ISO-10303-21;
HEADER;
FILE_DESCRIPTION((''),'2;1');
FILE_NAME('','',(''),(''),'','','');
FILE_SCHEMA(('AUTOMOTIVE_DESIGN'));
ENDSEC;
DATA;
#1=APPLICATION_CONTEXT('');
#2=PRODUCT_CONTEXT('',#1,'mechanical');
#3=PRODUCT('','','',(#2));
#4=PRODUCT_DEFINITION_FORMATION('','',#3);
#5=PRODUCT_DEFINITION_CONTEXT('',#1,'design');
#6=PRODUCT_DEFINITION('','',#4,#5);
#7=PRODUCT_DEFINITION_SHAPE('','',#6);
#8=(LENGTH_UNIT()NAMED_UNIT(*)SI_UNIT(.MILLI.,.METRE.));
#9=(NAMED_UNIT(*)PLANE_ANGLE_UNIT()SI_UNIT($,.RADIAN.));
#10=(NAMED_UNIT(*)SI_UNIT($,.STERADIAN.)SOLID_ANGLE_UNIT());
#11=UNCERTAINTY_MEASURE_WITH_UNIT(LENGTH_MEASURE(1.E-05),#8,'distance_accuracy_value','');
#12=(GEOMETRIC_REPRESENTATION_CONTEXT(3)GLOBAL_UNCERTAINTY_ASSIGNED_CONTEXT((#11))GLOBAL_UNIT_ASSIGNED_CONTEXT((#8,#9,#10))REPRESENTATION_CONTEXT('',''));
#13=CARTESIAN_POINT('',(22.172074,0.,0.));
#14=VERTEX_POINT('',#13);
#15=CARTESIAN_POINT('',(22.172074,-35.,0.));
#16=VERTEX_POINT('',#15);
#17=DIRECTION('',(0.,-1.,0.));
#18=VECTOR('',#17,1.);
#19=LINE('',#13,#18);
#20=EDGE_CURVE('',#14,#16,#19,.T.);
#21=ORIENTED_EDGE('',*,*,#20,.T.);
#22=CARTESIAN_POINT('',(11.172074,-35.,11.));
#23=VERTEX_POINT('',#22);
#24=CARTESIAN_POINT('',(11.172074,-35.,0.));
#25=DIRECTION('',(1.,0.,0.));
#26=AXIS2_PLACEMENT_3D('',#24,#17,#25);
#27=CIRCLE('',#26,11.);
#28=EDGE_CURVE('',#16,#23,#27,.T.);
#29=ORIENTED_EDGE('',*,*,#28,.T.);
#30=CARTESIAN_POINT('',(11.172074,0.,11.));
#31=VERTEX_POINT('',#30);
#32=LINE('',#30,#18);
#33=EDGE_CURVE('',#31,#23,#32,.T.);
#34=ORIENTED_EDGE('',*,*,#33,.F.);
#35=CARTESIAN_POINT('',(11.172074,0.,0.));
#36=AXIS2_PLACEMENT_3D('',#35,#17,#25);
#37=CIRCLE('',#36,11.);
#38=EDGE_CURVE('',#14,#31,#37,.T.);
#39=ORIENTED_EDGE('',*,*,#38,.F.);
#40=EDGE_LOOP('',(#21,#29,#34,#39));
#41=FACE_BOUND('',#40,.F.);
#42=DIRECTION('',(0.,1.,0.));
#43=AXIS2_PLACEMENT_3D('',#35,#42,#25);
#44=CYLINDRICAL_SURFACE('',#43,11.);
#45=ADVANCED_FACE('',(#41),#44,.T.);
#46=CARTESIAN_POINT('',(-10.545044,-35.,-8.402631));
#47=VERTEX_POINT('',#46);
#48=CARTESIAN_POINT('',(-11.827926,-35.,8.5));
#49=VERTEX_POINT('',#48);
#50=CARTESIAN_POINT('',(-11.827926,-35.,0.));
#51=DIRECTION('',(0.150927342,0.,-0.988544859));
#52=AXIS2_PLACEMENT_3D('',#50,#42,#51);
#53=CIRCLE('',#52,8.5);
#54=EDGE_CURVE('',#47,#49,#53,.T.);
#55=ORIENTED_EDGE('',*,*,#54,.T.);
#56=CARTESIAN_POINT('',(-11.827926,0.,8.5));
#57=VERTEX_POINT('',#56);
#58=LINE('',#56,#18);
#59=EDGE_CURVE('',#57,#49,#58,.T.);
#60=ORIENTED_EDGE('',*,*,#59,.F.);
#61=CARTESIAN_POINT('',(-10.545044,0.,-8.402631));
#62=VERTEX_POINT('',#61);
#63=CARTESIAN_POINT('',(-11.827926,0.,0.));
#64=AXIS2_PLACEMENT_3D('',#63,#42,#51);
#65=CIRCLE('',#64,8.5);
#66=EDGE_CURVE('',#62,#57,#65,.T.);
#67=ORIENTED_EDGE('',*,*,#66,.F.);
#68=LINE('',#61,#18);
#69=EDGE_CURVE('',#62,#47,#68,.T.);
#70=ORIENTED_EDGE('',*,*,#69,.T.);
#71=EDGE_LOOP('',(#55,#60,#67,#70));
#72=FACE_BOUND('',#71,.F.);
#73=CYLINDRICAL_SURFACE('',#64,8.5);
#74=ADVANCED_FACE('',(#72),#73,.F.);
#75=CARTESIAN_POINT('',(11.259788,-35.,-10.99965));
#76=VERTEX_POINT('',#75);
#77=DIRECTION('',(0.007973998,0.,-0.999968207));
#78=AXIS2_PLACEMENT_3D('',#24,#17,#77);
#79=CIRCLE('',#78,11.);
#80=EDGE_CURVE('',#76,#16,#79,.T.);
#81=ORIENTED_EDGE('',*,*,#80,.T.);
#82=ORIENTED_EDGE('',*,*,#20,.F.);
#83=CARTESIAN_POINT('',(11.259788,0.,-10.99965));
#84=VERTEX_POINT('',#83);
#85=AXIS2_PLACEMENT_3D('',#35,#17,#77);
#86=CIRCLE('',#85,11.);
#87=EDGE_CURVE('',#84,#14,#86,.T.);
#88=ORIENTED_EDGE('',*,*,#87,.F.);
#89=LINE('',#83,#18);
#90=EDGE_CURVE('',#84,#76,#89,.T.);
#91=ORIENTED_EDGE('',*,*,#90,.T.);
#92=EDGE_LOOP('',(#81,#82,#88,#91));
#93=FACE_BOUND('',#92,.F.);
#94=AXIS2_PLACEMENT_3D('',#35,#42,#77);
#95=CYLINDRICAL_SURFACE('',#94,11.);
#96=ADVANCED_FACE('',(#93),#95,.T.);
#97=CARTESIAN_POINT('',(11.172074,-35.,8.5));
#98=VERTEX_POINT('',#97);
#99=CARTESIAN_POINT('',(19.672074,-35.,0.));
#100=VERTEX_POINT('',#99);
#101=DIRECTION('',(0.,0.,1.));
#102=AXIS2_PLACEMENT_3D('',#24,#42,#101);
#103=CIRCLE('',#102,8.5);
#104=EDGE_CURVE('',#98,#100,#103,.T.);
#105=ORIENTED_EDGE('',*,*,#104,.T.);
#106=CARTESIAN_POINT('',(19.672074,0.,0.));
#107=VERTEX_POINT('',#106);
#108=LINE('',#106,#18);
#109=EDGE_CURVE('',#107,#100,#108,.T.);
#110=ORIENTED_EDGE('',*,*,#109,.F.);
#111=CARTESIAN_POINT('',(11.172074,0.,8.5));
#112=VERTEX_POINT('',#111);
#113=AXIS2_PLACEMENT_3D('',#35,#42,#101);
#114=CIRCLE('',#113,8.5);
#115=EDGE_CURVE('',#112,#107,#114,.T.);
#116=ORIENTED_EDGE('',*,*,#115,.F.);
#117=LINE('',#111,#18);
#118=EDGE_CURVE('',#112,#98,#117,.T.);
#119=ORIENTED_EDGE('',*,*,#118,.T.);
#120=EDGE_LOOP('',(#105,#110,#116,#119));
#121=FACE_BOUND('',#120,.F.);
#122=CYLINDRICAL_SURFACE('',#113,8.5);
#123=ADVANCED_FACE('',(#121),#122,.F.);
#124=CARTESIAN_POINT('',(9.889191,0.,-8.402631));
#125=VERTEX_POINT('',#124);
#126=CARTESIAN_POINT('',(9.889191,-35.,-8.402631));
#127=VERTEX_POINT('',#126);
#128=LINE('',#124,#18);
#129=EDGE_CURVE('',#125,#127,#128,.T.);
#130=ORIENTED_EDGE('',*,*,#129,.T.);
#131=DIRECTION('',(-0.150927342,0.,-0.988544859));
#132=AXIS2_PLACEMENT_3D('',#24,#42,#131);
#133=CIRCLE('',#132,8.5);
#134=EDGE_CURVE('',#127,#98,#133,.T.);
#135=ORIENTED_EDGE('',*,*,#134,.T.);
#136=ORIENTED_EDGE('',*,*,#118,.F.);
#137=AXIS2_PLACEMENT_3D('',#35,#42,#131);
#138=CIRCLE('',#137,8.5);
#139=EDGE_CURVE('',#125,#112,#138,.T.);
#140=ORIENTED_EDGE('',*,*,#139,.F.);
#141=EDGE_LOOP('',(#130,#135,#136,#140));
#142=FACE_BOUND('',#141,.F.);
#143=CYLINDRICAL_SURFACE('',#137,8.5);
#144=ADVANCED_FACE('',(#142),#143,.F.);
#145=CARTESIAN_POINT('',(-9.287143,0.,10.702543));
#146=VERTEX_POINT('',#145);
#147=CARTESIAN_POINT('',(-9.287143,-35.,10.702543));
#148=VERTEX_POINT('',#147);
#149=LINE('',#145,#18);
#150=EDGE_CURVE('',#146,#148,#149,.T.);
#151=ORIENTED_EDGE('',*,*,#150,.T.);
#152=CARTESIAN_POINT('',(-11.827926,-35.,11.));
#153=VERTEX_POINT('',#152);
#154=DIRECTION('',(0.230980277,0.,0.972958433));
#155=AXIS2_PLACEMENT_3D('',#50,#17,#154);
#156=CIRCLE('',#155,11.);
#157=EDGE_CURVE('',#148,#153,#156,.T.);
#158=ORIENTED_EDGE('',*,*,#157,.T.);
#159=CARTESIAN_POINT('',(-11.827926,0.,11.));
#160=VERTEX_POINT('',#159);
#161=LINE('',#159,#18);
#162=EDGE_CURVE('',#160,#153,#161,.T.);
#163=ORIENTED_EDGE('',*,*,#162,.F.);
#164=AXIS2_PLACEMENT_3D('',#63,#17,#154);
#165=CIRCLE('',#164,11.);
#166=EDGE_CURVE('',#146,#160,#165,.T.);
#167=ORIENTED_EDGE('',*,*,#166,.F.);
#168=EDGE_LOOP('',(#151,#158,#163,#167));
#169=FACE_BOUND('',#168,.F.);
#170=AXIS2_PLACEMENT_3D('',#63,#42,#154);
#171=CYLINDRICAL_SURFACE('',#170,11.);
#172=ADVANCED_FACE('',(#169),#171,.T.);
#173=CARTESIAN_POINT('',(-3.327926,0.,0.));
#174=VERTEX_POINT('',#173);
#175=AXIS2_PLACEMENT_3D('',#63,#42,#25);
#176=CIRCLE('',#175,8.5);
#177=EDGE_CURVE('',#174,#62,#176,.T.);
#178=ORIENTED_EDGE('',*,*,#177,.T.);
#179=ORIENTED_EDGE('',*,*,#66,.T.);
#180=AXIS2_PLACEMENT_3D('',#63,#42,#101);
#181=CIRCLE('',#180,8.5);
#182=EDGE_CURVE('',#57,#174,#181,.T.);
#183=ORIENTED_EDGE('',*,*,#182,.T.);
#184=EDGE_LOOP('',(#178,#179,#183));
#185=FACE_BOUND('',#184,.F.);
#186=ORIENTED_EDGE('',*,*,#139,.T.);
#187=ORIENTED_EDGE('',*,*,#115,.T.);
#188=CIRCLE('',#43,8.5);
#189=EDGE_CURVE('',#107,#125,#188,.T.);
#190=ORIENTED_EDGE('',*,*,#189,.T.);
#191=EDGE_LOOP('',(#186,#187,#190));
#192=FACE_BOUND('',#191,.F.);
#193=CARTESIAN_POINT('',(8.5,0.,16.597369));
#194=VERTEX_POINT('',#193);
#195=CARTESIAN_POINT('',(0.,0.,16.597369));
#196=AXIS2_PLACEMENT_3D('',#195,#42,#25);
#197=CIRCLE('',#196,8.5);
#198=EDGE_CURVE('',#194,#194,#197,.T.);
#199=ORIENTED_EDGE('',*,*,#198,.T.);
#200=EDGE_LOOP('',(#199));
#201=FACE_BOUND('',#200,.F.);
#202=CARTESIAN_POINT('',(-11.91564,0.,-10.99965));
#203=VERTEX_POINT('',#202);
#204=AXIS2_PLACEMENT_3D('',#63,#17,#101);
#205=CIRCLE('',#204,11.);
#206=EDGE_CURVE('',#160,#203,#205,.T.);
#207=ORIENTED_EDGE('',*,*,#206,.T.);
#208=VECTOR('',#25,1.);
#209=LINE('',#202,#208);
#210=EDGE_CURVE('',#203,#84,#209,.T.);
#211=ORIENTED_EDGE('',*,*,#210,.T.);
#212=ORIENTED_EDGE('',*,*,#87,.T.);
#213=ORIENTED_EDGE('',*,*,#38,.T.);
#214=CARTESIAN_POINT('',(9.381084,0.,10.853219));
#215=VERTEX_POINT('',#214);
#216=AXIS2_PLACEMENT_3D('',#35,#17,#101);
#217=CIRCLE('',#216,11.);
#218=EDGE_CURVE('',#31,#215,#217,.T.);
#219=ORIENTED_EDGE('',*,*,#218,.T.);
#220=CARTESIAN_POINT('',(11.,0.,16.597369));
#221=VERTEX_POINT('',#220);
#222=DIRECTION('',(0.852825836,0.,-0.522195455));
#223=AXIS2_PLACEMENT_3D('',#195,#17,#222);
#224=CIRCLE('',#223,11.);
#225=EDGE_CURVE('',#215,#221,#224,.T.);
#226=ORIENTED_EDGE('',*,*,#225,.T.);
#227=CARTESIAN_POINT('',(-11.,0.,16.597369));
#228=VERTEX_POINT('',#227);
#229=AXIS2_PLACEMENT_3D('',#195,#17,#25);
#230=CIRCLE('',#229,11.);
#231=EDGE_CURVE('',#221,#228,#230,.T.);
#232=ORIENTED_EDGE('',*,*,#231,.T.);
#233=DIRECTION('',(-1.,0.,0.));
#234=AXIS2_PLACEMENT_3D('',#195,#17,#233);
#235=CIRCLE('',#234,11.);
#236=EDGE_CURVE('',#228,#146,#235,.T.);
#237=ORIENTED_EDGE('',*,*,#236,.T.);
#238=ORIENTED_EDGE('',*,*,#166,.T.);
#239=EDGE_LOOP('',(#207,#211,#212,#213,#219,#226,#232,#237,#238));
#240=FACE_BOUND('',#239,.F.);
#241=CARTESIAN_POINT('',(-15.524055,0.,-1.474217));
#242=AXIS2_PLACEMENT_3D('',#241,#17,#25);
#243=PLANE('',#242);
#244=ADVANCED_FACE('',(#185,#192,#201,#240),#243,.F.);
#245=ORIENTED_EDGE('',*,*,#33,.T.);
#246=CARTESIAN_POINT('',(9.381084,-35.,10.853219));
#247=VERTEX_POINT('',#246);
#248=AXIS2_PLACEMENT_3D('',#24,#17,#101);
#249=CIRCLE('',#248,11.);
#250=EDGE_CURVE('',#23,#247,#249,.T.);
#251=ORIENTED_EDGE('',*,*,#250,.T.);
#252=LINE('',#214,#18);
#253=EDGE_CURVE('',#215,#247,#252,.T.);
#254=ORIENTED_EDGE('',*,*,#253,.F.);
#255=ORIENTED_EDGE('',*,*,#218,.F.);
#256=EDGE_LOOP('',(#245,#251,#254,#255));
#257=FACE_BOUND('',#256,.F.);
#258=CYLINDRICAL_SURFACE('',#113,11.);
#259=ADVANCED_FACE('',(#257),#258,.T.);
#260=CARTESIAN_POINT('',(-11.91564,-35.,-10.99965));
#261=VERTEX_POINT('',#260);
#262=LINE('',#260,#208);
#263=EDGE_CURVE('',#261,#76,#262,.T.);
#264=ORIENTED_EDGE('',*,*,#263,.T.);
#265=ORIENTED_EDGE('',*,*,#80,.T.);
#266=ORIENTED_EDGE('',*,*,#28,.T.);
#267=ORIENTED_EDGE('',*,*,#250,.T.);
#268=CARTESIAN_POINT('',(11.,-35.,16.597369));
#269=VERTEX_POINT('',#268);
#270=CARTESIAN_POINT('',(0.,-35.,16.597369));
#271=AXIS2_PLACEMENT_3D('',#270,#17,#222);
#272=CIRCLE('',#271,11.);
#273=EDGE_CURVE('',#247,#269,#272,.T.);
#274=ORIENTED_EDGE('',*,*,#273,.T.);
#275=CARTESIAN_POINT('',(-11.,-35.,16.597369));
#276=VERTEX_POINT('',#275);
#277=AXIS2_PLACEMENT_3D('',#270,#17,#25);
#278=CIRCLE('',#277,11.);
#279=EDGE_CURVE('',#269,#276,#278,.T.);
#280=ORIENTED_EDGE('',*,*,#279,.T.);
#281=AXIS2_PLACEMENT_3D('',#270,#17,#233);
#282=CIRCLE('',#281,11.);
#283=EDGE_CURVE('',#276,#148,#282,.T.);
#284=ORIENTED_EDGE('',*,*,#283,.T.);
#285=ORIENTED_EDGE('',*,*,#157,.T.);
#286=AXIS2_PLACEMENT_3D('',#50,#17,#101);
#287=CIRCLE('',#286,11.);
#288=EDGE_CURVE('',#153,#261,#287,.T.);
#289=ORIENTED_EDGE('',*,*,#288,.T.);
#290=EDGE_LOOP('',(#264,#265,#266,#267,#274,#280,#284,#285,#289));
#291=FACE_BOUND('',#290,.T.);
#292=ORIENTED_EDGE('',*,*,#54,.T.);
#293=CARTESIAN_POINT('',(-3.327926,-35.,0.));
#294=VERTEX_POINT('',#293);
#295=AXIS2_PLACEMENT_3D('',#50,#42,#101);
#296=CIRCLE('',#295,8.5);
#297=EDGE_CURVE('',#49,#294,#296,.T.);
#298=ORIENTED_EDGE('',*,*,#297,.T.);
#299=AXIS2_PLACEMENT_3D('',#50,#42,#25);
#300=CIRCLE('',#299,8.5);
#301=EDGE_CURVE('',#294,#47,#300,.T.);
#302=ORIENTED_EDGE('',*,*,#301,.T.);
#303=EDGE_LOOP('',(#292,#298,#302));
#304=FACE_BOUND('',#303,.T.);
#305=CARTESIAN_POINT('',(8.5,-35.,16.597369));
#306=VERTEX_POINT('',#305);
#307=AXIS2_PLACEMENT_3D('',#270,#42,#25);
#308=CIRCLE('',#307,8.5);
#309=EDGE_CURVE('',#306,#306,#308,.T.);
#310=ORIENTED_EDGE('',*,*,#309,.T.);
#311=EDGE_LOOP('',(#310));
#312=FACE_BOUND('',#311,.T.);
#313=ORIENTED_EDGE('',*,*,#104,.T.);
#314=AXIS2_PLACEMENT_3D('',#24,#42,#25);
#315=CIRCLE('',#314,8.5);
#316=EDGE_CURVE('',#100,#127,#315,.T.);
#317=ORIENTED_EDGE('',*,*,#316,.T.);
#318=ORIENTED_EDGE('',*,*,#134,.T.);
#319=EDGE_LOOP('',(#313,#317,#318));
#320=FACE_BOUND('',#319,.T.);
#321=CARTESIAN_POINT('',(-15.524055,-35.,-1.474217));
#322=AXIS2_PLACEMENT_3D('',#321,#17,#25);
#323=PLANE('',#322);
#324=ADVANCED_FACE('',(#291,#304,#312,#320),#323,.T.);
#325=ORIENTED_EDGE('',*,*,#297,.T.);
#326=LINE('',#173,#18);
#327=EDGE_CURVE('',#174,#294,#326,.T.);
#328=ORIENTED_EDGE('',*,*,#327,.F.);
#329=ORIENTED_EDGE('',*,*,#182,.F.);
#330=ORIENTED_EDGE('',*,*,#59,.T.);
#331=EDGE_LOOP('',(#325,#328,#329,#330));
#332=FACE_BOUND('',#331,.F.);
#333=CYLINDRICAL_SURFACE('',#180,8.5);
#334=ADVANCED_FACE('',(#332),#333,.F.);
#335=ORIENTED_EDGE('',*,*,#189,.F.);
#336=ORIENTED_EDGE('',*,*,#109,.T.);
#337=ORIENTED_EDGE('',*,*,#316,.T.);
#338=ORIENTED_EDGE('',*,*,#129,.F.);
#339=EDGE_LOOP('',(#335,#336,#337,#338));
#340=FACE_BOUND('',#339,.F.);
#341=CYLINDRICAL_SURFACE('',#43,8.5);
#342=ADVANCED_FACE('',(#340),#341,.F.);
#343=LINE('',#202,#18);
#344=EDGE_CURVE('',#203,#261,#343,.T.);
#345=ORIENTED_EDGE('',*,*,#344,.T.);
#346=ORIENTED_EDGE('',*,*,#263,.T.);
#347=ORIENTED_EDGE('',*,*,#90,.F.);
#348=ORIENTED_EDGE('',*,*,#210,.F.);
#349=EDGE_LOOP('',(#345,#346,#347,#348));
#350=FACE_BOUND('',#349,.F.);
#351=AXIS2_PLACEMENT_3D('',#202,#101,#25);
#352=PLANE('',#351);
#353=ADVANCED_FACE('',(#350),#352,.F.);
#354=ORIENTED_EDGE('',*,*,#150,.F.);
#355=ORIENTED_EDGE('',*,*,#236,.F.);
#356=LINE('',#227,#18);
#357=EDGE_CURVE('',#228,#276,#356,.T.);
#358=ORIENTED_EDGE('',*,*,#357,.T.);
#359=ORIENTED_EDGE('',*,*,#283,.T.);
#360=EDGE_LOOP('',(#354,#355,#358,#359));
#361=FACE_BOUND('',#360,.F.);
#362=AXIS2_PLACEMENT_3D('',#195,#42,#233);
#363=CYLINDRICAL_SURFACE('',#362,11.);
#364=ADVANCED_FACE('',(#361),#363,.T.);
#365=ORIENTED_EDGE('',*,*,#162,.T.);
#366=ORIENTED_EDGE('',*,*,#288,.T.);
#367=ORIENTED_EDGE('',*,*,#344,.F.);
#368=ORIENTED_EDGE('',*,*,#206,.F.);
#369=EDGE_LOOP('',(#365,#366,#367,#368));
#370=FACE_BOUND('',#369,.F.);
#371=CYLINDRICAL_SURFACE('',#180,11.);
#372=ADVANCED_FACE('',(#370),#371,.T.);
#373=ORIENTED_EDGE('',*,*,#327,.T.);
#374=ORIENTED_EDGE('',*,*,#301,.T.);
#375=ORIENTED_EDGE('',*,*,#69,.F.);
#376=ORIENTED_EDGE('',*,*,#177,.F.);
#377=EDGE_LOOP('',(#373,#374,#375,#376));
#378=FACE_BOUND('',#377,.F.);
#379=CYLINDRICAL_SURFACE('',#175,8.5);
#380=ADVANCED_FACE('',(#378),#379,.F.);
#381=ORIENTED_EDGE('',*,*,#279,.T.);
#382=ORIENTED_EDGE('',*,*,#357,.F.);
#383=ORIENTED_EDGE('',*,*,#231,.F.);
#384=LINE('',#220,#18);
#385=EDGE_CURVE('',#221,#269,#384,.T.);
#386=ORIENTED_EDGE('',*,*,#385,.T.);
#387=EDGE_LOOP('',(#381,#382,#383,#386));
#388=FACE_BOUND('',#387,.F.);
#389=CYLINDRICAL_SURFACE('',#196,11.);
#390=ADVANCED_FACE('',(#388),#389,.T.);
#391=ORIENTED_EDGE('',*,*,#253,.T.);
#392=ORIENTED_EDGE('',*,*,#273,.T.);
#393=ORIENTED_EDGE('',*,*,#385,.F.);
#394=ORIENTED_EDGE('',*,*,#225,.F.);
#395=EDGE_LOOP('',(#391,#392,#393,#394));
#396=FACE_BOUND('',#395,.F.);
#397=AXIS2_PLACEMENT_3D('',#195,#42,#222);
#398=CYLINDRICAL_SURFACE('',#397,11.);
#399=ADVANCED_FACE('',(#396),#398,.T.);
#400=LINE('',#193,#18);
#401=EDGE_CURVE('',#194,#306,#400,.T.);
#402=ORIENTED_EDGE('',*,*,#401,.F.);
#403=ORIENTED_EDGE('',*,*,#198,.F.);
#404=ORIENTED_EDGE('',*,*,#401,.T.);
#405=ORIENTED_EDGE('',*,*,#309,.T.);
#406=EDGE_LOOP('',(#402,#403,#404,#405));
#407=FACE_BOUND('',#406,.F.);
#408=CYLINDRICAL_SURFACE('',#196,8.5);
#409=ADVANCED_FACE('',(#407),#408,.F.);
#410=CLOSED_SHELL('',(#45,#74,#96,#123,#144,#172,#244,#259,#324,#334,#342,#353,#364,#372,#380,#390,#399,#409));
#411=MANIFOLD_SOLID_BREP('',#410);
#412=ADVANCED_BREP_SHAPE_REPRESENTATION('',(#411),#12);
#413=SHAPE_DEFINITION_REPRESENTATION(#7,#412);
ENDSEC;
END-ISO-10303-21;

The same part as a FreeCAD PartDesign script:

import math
import FreeCAD as App
import Part
import Sketcher
from FreeCAD import Vector

doc = App.newDocument("Part")
body = doc.addObject("PartDesign::Body", "Body")

# Sketch on XZ plane
sketch1 = body.newObject("Sketcher::SketchObject", "Sketch")
sketch1.AttachmentSupport = (doc.getObject("XZ_Plane"), [""])
sketch1.MapMode = "FlatFace"
sketch1.addGeometry(Part.ArcOfCircle(Part.Circle(Vector(0, 16.597369, 0), Vector(0, 0, 1), 11), math.radians(180), math.radians(212.404511)), False)
sketch1.addGeometry(Part.ArcOfCircle(Part.Circle(Vector(-11.827926, 0, 0), Vector(0, 0, 1), 11), math.radians(76.645208), math.radians(90)), False)
sketch1.addGeometry(Part.ArcOfCircle(Part.Circle(Vector(-11.827926, 0, 0), Vector(0, 0, 1), 11), math.radians(90), math.radians(269.543119)), False)
sketch1.addGeometry(Part.LineSegment(Vector(-11.91564, -10.99965, 0), Vector(11.259788, -10.99965, 0)), False)
sketch1.addGeometry(Part.ArcOfCircle(Part.Circle(Vector(11.172074, 0, 0), Vector(0, 0, 1), 11), math.radians(-89.543119), math.radians(0)), False)
sketch1.addGeometry(Part.ArcOfCircle(Part.Circle(Vector(11.172074, 0, 0), Vector(0, 0, 1), 11), math.radians(0), math.radians(90)), False)
sketch1.addGeometry(Part.ArcOfCircle(Part.Circle(Vector(11.172074, 0, 0), Vector(0, 0, 1), 11), math.radians(90), math.radians(99.370457)), False)
sketch1.addGeometry(Part.ArcOfCircle(Part.Circle(Vector(0, 16.597369, 0), Vector(0, 0, 1), 11), math.radians(-31.479634), math.radians(0)), False)
sketch1.addGeometry(Part.ArcOfCircle(Part.Circle(Vector(0, 16.597369, 0), Vector(0, 0, 1), 11), math.radians(0), math.radians(180)), False)
sketch1.addGeometry(Part.ArcOfCircle(Part.Circle(Vector(-11.827926, 0, 0), Vector(0, 0, 1), 8.5), math.radians(-81.319329), math.radians(0)), False)
sketch1.addGeometry(Part.ArcOfCircle(Part.Circle(Vector(-11.827926, 0, 0), Vector(0, 0, 1), 8.5), math.radians(90), math.radians(278.680671)), False)
sketch1.addGeometry(Part.ArcOfCircle(Part.Circle(Vector(-11.827926, 0, 0), Vector(0, 0, 1), 8.5), math.radians(0), math.radians(90)), False)
sketch1.addGeometry(Part.ArcOfCircle(Part.Circle(Vector(11.172074, 0, 0), Vector(0, 0, 1), 8.5), math.radians(90), math.radians(261.319329)), False)
sketch1.addGeometry(Part.ArcOfCircle(Part.Circle(Vector(11.172074, 0, 0), Vector(0, 0, 1), 8.5), math.radians(0), math.radians(90)), False)
sketch1.addGeometry(Part.ArcOfCircle(Part.Circle(Vector(11.172074, 0, 0), Vector(0, 0, 1), 8.5), math.radians(-98.680671), math.radians(0)), False)
sketch1.addGeometry(Part.Circle(Vector(0, 16.597369, 0), Vector(0, 0, 1), 8.5), False)
sketch1.addConstraint(Sketcher.Constraint("Coincident", 0, 2, 1, 1))
sketch1.addConstraint(Sketcher.Constraint("Tangent", 1, 2, 2, 1))
sketch1.addConstraint(Sketcher.Constraint("Coincident", 2, 2, 3, 1))
sketch1.addConstraint(Sketcher.Constraint("Coincident", 3, 2, 4, 1))
sketch1.addConstraint(Sketcher.Constraint("Tangent", 4, 2, 5, 1))
sketch1.addConstraint(Sketcher.Constraint("Tangent", 5, 2, 6, 1))
sketch1.addConstraint(Sketcher.Constraint("Coincident", 6, 2, 7, 1))
sketch1.addConstraint(Sketcher.Constraint("Tangent", 7, 2, 8, 1))
sketch1.addConstraint(Sketcher.Constraint("Tangent", 8, 2, 0, 1))
sketch1.addConstraint(Sketcher.Constraint("Tangent", 9, 1, 10, 2))
sketch1.addConstraint(Sketcher.Constraint("Tangent", 10, 1, 11, 2))
sketch1.addConstraint(Sketcher.Constraint("Tangent", 11, 1, 9, 2))
sketch1.addConstraint(Sketcher.Constraint("Tangent", 12, 1, 13, 2))
sketch1.addConstraint(Sketcher.Constraint("Tangent", 13, 1, 14, 2))
sketch1.addConstraint(Sketcher.Constraint("Tangent", 14, 1, 12, 2))
sketch1.addConstraint(Sketcher.Constraint("Horizontal", 3))
sketch1.addConstraint(Sketcher.Constraint("Coincident", 6, 3, 4, 3))
sketch1.addConstraint(Sketcher.Constraint("Coincident", 9, 3, 1, 3))
sketch1.addConstraint(Sketcher.Constraint("Coincident", 12, 3, 4, 3))
sketch1.addConstraint(Sketcher.Constraint("Coincident", 15, 3, 0, 3))
sketch1.addConstraint(Sketcher.Constraint("Equal", 0, 1))
sketch1.addConstraint(Sketcher.Constraint("Equal", 1, 2))
sketch1.addConstraint(Sketcher.Constraint("Equal", 2, 4))
sketch1.addConstraint(Sketcher.Constraint("Equal", 6, 7))
sketch1.addConstraint(Sketcher.Constraint("Equal", 7, 8))
sketch1.addConstraint(Sketcher.Constraint("Equal", 11, 12))
sketch1.addConstraint(Sketcher.Constraint("Equal", 14, 15))
sketch1.addConstraint(Sketcher.Constraint("Symmetric", 7, 2, 8, 2, -2))
sketch1.addConstraint(Sketcher.Constraint("PointOnObject", 1, 3, -1))
sketch1.addConstraint(Sketcher.Constraint("PointOnObject", 4, 3, -1))
sketch1.addConstraint(Sketcher.Constraint("PointOnObject", 4, 2, -1))
sketch1.addConstraint(Sketcher.Constraint("PointOnObject", 11, 1, -1))
sketch1.addConstraint(Sketcher.Constraint("PointOnObject", 13, 1, -1))
sketch1.addConstraint(Sketcher.Constraint("Horizontal", 15, 3, 7, 2))
sketch1.addConstraint(Sketcher.Constraint("Horizontal", 9, 1, 14, 1))
sketch1.addConstraint(Sketcher.Constraint("Vertical", 11, 3, 1, 2))
sketch1.addConstraint(Sketcher.Constraint("Vertical", 14, 3, 5, 2))
sketch1.addConstraint(Sketcher.Constraint("Vertical", 1, 2, 10, 1))
sketch1.addConstraint(Sketcher.Constraint("Vertical", 5, 2, 12, 1))
sketch1.addConstraint(Sketcher.Constraint("Diameter", 15, 17.0))
sketch1.addConstraint(Sketcher.Constraint("Radius", 0, 11.0))
sketch1.addConstraint(Sketcher.Constraint("DistanceX", 2, 3, 4, 3, 23.0))
sketch1.addConstraint(Sketcher.Constraint("DistanceX", 3, 1, 3, 2, 23.175428))
sketch1.addConstraint(Sketcher.Constraint("DistanceY", -1, 1, 0, 3, 16.597369))
sketch1.addConstraint(Sketcher.Constraint("DistanceX", 2, 2, -1, 1, 11.91564))
sketch1.addConstraint(Sketcher.Constraint("DistanceY", 9, 1, -1, 1, 8.402631))
pad1 = body.newObject("PartDesign::Pad", "Pad")
pad1.Profile = sketch1
pad1.Length = 35

doc.recompute()
